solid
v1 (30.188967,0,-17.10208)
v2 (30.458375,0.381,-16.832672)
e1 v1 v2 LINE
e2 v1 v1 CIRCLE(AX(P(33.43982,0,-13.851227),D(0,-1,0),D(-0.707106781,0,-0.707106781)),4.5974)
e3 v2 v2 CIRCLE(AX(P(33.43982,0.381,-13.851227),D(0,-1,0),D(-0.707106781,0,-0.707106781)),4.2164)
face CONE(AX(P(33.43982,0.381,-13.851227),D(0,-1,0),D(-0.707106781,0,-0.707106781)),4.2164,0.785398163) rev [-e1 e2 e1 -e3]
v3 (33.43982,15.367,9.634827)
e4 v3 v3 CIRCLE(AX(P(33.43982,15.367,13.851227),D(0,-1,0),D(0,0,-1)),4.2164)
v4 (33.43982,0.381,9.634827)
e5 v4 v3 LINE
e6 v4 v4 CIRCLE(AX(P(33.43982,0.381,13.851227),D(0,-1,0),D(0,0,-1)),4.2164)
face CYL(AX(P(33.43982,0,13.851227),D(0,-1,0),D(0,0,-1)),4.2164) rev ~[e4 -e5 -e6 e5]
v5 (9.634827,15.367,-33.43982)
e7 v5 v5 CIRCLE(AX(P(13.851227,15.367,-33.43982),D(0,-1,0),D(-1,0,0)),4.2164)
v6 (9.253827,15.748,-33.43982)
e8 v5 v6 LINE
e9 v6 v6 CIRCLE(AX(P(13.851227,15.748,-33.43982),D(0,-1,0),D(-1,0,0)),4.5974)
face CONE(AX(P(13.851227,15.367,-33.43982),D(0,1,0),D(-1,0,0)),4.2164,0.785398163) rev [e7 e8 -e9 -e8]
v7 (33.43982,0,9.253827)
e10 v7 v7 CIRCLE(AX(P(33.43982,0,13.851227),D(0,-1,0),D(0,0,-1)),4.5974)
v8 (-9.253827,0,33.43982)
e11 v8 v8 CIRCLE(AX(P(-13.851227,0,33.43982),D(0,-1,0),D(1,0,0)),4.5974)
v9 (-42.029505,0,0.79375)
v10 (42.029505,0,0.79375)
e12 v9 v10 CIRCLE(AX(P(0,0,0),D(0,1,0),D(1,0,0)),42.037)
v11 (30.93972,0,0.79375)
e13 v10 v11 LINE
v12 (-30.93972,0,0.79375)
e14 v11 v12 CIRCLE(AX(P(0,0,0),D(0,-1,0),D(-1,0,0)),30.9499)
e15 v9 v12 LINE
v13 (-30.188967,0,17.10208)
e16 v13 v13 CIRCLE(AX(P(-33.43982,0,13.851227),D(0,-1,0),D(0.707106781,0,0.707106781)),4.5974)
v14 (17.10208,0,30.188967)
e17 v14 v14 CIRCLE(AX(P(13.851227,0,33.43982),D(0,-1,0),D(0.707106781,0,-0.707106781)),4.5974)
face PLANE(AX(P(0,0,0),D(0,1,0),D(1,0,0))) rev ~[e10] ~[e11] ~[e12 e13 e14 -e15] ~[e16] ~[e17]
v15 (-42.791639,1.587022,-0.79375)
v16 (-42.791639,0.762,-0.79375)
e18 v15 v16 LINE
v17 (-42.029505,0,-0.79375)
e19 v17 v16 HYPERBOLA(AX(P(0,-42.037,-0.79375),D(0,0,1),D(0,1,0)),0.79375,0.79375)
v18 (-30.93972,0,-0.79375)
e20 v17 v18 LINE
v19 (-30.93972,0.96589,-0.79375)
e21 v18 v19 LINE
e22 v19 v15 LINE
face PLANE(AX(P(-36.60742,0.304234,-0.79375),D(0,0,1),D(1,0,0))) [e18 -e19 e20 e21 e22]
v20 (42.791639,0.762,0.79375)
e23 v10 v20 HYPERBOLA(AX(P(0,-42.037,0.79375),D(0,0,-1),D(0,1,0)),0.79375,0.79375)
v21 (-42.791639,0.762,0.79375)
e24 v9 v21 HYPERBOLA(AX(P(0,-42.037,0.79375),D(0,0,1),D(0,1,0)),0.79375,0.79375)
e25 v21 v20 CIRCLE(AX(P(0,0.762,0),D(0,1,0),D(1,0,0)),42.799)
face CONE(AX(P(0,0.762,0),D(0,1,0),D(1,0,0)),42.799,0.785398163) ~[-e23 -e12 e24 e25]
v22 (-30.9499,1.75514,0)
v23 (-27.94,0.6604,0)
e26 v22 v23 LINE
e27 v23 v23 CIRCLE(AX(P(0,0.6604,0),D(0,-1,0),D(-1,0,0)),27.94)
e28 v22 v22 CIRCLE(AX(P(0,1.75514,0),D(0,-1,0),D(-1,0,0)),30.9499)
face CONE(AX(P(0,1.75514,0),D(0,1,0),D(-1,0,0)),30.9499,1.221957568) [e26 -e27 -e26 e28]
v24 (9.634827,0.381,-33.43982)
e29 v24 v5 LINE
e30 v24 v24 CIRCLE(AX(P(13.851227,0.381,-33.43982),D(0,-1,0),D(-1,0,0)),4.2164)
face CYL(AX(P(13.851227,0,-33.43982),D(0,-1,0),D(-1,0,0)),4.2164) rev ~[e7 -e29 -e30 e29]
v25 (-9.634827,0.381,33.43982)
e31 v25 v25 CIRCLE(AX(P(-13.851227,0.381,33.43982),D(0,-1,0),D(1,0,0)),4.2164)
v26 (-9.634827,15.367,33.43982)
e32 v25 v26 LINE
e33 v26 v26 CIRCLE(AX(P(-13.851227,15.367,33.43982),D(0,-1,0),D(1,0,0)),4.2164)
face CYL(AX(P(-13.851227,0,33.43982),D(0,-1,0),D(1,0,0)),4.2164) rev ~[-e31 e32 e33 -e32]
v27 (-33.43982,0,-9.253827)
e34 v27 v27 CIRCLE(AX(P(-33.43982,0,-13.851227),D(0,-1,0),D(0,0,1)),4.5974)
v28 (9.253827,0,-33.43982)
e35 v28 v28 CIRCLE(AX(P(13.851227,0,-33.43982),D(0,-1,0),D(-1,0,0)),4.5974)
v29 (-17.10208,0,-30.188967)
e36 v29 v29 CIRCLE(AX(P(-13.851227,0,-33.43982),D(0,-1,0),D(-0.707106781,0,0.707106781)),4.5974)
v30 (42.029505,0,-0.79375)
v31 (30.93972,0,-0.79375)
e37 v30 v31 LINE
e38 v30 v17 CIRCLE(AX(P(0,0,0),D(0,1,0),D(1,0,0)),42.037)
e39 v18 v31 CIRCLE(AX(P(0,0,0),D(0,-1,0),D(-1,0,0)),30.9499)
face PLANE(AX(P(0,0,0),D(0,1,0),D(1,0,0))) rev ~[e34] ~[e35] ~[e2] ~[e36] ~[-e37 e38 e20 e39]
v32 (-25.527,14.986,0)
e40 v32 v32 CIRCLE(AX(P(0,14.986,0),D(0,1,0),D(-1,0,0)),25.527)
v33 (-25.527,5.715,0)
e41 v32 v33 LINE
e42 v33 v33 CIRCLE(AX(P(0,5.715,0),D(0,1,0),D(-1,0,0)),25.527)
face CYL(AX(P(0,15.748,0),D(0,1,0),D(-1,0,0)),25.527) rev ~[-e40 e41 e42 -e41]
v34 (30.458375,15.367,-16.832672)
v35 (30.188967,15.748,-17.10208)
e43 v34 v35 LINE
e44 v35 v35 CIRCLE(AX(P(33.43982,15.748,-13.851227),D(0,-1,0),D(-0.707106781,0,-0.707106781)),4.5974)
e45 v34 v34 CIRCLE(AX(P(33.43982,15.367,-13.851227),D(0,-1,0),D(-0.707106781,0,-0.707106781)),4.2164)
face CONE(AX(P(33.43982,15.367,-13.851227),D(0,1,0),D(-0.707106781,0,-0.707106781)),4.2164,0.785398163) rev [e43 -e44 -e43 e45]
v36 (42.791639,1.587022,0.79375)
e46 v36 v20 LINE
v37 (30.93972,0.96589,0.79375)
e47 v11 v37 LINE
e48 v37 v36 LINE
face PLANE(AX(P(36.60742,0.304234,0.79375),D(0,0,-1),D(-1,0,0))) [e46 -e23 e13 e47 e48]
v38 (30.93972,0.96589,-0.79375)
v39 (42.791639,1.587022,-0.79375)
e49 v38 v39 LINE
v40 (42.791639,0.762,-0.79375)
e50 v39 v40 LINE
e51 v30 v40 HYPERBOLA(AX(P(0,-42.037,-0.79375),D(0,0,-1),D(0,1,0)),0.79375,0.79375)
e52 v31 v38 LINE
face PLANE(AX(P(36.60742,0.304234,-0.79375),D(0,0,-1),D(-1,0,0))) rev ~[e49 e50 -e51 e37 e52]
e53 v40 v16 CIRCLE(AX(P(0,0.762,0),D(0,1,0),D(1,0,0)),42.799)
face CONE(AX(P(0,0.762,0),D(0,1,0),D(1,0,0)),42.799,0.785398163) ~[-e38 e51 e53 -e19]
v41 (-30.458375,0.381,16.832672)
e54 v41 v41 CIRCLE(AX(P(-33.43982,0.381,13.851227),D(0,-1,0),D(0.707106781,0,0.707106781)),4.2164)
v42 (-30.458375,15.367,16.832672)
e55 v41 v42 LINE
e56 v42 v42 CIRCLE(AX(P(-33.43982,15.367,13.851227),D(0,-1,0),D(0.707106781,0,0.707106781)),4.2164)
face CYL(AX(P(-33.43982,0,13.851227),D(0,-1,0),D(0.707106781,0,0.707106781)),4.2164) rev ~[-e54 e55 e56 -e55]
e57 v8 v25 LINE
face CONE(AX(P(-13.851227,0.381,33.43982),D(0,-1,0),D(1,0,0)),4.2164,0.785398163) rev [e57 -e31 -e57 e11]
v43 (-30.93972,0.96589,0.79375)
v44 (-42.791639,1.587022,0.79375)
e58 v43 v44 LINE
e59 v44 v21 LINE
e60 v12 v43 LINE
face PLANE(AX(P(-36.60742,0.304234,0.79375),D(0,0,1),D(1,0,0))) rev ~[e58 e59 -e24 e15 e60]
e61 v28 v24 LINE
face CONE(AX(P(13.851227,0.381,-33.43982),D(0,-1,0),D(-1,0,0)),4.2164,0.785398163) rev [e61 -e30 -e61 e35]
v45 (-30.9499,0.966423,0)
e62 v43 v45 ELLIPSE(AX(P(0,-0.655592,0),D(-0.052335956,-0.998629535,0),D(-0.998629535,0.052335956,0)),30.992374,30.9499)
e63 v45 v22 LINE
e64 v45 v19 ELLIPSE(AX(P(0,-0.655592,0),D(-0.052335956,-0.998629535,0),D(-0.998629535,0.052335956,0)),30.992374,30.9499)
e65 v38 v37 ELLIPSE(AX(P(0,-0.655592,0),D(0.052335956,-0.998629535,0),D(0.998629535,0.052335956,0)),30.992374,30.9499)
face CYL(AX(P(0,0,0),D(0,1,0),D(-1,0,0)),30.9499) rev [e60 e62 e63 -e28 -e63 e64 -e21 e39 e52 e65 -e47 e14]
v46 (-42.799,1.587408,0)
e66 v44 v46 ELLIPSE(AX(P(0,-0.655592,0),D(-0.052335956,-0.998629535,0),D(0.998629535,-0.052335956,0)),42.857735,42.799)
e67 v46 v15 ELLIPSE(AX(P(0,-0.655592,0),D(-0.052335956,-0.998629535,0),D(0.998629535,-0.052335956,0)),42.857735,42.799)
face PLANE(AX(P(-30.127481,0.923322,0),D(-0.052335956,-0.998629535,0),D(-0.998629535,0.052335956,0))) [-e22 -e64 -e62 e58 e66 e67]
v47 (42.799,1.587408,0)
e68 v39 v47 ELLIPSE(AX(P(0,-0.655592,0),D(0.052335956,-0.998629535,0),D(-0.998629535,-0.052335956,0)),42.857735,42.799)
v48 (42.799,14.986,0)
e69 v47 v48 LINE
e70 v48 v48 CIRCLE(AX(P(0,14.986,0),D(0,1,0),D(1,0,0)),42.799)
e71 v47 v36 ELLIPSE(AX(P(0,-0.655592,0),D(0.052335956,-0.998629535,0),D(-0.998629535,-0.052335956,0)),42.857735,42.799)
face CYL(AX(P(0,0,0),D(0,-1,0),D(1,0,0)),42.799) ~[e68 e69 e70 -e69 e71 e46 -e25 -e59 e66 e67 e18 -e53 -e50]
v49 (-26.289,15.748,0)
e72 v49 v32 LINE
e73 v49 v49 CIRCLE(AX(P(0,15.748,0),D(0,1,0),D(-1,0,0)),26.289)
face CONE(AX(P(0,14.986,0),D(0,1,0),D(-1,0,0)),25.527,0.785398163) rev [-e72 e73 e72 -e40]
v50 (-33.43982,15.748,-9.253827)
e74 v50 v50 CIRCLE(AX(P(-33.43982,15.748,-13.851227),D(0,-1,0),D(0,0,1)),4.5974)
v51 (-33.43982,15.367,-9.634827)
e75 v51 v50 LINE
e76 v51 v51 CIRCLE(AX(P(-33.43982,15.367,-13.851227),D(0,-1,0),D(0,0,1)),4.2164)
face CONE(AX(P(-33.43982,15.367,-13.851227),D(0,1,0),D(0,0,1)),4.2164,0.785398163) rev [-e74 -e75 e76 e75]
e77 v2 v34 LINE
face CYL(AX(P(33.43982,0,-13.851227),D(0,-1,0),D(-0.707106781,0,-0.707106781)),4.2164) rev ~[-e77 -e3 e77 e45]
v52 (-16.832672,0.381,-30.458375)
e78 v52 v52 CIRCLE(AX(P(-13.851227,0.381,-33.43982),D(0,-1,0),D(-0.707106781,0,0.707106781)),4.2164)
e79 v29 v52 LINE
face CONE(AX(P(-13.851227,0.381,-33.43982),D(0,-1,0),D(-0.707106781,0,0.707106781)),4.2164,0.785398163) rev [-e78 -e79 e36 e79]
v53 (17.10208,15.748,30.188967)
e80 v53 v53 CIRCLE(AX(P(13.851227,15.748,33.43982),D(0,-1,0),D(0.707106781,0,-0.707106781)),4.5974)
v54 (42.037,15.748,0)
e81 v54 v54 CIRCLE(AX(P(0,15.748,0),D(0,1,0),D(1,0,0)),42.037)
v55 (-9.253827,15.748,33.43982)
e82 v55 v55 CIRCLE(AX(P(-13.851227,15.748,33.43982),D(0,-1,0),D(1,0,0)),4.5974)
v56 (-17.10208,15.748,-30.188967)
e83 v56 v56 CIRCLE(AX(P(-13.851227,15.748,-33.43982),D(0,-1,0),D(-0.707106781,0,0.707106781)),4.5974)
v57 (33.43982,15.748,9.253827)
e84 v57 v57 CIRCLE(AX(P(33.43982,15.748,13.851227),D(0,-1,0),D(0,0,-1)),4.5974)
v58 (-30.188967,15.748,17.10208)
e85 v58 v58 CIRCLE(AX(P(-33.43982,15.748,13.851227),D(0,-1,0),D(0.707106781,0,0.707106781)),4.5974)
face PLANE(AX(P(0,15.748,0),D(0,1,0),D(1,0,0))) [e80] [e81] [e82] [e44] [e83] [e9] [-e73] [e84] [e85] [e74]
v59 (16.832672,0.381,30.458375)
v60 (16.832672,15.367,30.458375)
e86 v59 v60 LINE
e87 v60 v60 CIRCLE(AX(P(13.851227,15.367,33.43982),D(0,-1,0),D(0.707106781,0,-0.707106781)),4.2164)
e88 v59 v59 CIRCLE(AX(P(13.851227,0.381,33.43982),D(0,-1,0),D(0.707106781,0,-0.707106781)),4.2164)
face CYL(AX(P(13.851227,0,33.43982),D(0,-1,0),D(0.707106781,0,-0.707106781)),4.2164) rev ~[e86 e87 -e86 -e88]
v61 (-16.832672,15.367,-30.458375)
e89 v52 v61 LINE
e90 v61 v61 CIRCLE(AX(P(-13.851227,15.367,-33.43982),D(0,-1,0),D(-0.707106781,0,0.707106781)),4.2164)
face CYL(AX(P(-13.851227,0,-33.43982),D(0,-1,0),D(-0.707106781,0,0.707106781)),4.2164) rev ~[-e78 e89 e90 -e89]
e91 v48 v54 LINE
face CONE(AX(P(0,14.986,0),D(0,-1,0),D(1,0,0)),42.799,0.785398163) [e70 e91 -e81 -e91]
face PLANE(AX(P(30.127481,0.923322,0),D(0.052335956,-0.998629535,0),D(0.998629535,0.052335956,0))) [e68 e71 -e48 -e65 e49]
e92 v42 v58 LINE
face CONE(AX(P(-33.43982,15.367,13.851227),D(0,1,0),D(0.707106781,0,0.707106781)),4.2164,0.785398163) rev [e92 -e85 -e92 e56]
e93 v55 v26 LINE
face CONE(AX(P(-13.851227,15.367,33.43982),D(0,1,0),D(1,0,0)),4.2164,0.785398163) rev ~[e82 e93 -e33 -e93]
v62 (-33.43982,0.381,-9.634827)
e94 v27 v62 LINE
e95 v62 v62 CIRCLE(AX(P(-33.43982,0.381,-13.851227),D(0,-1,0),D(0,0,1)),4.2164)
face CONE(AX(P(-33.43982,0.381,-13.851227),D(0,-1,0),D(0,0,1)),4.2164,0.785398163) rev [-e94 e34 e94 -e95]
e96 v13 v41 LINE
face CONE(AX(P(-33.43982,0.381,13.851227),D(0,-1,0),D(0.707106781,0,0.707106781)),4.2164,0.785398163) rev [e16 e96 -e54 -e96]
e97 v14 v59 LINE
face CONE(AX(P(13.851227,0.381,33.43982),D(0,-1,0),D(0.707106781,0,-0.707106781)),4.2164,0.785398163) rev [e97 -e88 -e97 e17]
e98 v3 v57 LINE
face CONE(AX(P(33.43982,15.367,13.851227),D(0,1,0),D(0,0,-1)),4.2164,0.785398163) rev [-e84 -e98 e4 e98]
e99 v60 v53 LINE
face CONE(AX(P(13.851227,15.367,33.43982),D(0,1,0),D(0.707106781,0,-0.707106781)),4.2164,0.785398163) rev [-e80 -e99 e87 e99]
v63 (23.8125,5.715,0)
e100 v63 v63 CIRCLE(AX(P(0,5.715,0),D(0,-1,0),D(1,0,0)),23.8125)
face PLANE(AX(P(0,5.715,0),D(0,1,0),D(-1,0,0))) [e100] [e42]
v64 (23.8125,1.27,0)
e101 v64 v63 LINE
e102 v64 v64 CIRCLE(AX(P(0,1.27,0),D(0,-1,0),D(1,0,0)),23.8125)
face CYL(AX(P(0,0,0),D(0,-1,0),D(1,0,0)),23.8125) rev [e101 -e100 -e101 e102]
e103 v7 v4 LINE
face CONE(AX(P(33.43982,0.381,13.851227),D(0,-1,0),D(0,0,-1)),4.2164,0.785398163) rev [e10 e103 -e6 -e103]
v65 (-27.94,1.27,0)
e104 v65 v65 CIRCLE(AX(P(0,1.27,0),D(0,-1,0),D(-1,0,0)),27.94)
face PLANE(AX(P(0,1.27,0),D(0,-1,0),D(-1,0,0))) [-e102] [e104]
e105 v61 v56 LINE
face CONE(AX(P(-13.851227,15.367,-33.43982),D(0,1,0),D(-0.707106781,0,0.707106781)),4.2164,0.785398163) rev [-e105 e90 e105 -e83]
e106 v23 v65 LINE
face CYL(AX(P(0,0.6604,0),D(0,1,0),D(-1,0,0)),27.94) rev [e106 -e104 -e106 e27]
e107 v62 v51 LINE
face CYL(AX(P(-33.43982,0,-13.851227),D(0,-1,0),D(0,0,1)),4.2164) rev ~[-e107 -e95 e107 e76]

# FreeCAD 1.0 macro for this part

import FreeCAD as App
import Part
import Sketcher
from FreeCAD import Vector
Q = App.Units.Quantity


def edges_at(feature, points):
    """Names of the edges that pass closest to the given points."""
    edges = feature.Shape.Edges
    near = lambda p: min(range(len(edges)), key=lambda i: edges[i].distToShape(Part.Vertex(*p))[0])
    return sorted({f"Edge{near(p) + 1}" for p in points})

doc = App.newDocument("Part")
body = doc.addObject("PartDesign::Body", "Body")

# Sketch on XZ plane
sketch1 = body.newObject("Sketcher::SketchObject", "Sketch")
sketch1.AttachmentSupport = (doc.getObject("XZ_Plane"), [""])
sketch1.MapMode = "FlatFace"
sketch1.addGeometry([
    Part.Circle(Vector(0, 0, 0), Vector(0, 0, 1), 43),
    Part.Circle(Vector(0, 0, 0), Vector(0, 0, 1), 24),
], False)
sketch1.addConstraint([
    Sketcher.Constraint("Coincident", 0, 3, -1, 1),
    Sketcher.Constraint("Coincident", 1, 3, -1, 1),
    Sketcher.Constraint("Diameter", 0, Q("3.37 in")),
    Sketcher.Constraint("Diameter", 1, Q("1.875 in")),
])
pad1 = body.newObject("PartDesign::Pad", "Pad")
pad1.Profile = sketch1
pad1.Length = Q("0.62 in")
pad1.Reversed = True

# Sketch on XZ plane
sketch2 = body.newObject("Sketcher::SketchObject", "Sketch001")
sketch2.AttachmentSupport = (doc.getObject("XZ_Plane"), [""])
sketch2.MapMode = "FlatFace"
sketch2.AttachmentOffset = App.Placement(Vector(0, 0, -0.62 * 25.4), App.Rotation())
sketch2.addGeometry(Part.Circle(Vector(0, 0, 0), Vector(0, 0, 1), 26), False)
sketch2.addConstraint([
    Sketcher.Constraint("Coincident", 0, 3, -1, 1),
    Sketcher.Constraint("Diameter", 0, Q("2.01 in")),
])
pocket1 = body.newObject("PartDesign::Pocket", "Pocket")
pocket1.Profile = sketch2
pocket1.Length = Q("0.395 in")
pocket1.Reversed = True
doc.recompute()

chamfer = body.newObject("PartDesign::Chamfer", "Chamfer")
chamfer.Base = (pocket1, edges_at(pocket1, [(25.527, 15.748, 0), (-42.799, 0, 0), (-42.799, 15.748, 0)]))
chamfer.Size = Q("0.03 in")

# Sketch on XY plane
sketch3 = body.newObject("Sketcher::SketchObject", "Sketch002")
sketch3.AttachmentSupport = (doc.getObject("XY_Plane"), [""])
sketch3.MapMode = "FlatFace"
sketch3.addGeometry([
    Part.LineSegment(Vector(0, 0, 0), Vector(-30.9, 0, 0)),  # 0
    Part.LineSegment(Vector(-30.9, 0, 0), Vector(-30.9, 1.8, 0)),  # 1
    Part.LineSegment(Vector(-30.9, 1.8, 0), Vector(-27.9, 0.7, 0)),  # 2
    Part.LineSegment(Vector(-27.9, 0.7, 0), Vector(-27.9, 1.3, 0)),  # 3
    Part.LineSegment(Vector(-27.9, 1.3, 0), Vector(0, 1.3, 0)),  # 4
    Part.LineSegment(Vector(0, 1.3, 0), Vector(0, 0, 0)),  # 5
], False)
sketch3.addConstraint([
    Sketcher.Constraint("Coincident", 0, 2, 1, 1),
    Sketcher.Constraint("Coincident", 1, 2, 2, 1),
    Sketcher.Constraint("Coincident", 2, 2, 3, 1),
    Sketcher.Constraint("Coincident", 3, 2, 4, 1),
    Sketcher.Constraint("Coincident", 4, 2, 5, 1),
    Sketcher.Constraint("Coincident", 5, 2, 0, 1),
    Sketcher.Constraint("Horizontal", 0),
    Sketcher.Constraint("Vertical", 1),
    Sketcher.Constraint("Vertical", 3),
    Sketcher.Constraint("Horizontal", 4),
    Sketcher.Constraint("Vertical", 5),
    Sketcher.Constraint("Coincident", 5, 2, -1, 1),
    Sketcher.Constraint("DistanceX", 4, 1, 4, 2, Q("1.1 in")),
    Sketcher.Constraint("DistanceY", 5, 2, 5, 1, Q("0.05 in")),
    Sketcher.Constraint("DistanceY", 3, 1, 3, 2, Q("0.024 in")),
    Sketcher.Constraint("DistanceX", 0, 2, 0, 1, Q("1.2185 in")),
    Sketcher.Constraint("DistanceY", 1, 1, 1, 2, Q("0.0691 in")),
])
groove = body.newObject("PartDesign::Groove", "Groove")
groove.Profile = sketch3
groove.ReferenceAxis = (sketch3, ["V_Axis"])
groove.Angle = 360

# Sketch on XZ plane
sketch4 = body.newObject("Sketcher::SketchObject", "Sketch003")
sketch4.AttachmentSupport = (doc.getObject("XZ_Plane"), [""])
sketch4.MapMode = "FlatFace"
sketch4.addGeometry(Part.Circle(Vector(-13.9, 33.4, 0), Vector(0, 0, 1), 4.2), False)
sketch4.addConstraint([
    Sketcher.Constraint("Diameter", 0, Q("0.332 in")),
    Sketcher.Constraint("DistanceY", -1, 1, 0, 3, 33.43982),
    Sketcher.Constraint("DistanceX", 0, 3, -1, 1, 13.851227),
])
pocket2 = body.newObject("PartDesign::Pocket", "Pocket001")
pocket2.Profile = sketch4
pocket2.Type = "ThroughAll"
doc.recompute()

chamfer2 = body.newObject("PartDesign::Chamfer", "Chamfer001")
chamfer2.Base = (pocket2, edges_at(pocket2, [(-18.068, 15.748, 33.44), (-18.068, 0, 33.44)]))
chamfer2.Size = Q("0.015 in")
doc.recompute()

polarpattern = body.newObject("PartDesign::PolarPattern", "PolarPattern")
polarpattern.Originals = [pocket2]
polarpattern.Axis = (doc.getObject("Y_Axis"), [""])
polarpattern.Angle = 360
polarpattern.Occurrences = 8
body.Tip = polarpattern
doc.recompute()

chamfer3 = body.newObject("PartDesign::Chamfer", "Chamfer002")
chamfer3.Base = (polarpattern, edges_at(polarpattern, [
    (10.87, 15.748, 36.421),
    (10.87, 0, 36.421),
    (33.44, 15.748, 18.068),
    (33.44, 0, 18.068),
    (36.421, 15.748, -10.87),
    (36.421, 0, -10.87),
    (18.068, 15.748, -33.44),
    (18.068, 0, -33.44),
    (-10.87, 15.748, -36.421),
    (-10.87, 0, -36.421),
    (-33.44, 15.748, -18.068),
    (-33.44, 0, -18.068),
    (-36.421, 15.748, 10.87),
    (-36.421, 0, 10.87),
]))
chamfer3.Size = Q("0.015 in")

# Sketch on XY plane
sketch5 = body.newObject("Sketcher::SketchObject", "Sketch004")
sketch5.AttachmentSupport = (doc.getObject("XY_Plane"), [""])
sketch5.MapMode = "FlatFace"
sketch5.addGeometry([
    Part.LineSegment(Vector(-42.8, 1.6, 0), Vector(-42.8, -0.7, 0)),  # 0
    Part.LineSegment(Vector(-42.8, -0.7, 0), Vector(-30.1, -0.7, 0)),  # 1
    Part.LineSegment(Vector(-30.1, -0.7, 0), Vector(-30.1, 0.9, 0)),  # 2
    Part.LineSegment(Vector(-30.1, 0.9, 0), Vector(-42.8, 1.6, 0)),  # 3
    Part.LineSegment(Vector(42.8, 1.6, 0), Vector(30.1, 0.9, 0)),  # 4
    Part.LineSegment(Vector(30.1, 0.9, 0), Vector(30.1, -0.7, 0)),  # 5
    Part.LineSegment(Vector(30.1, -0.7, 0), Vector(42.8, -0.7, 0)),  # 6
    Part.LineSegment(Vector(42.8, -0.7, 0), Vector(42.8, 1.6, 0)),  # 7
], False)
sketch5.addConstraint([
    Sketcher.Constraint("Coincident", 0, 2, 1, 1),
    Sketcher.Constraint("Coincident", 1, 2, 2, 1),
    Sketcher.Constraint("Coincident", 2, 2, 3, 1),
    Sketcher.Constraint("Coincident", 3, 2, 0, 1),
    Sketcher.Constraint("Coincident", 4, 2, 5, 1),
    Sketcher.Constraint("Coincident", 5, 2, 6, 1),
    Sketcher.Constraint("Coincident", 6, 2, 7, 1),
    Sketcher.Constraint("Coincident", 7, 2, 4, 1),
    Sketcher.Constraint("Vertical", 0),
    Sketcher.Constraint("Horizontal", 1),
    Sketcher.Constraint("Vertical", 2),
    Sketcher.Constraint("Vertical", 5),
    Sketcher.Constraint("Horizontal", 6),
    Sketcher.Constraint("Vertical", 7),
    Sketcher.Constraint("Symmetric", 2, 2, 4, 2, -2),
    Sketcher.Constraint("Symmetric", 0, 2, 6, 2, -2),
    Sketcher.Constraint("Horizontal", 3, 2, 7, 2),
    Sketcher.Constraint("Angle", 3, Q("177 deg")),
    Sketcher.Constraint("DistanceX", 0, 2, 6, 2, Q("3.37 in")),
    Sketcher.Constraint("DistanceY", 0, 2, 0, 1, 2.243001),
    Sketcher.Constraint("DistanceX", 1, 1, 1, 2, 12.671519),
    Sketcher.Constraint("DistanceY", -1, 1, 3, 2, 1.587408),
])
pocket3 = body.newObject("PartDesign::Pocket", "Pocket002")
pocket3.Profile = sketch5
pocket3.Length = Q("0.0625 in")
pocket3.Midplane = True

doc.recompute()
